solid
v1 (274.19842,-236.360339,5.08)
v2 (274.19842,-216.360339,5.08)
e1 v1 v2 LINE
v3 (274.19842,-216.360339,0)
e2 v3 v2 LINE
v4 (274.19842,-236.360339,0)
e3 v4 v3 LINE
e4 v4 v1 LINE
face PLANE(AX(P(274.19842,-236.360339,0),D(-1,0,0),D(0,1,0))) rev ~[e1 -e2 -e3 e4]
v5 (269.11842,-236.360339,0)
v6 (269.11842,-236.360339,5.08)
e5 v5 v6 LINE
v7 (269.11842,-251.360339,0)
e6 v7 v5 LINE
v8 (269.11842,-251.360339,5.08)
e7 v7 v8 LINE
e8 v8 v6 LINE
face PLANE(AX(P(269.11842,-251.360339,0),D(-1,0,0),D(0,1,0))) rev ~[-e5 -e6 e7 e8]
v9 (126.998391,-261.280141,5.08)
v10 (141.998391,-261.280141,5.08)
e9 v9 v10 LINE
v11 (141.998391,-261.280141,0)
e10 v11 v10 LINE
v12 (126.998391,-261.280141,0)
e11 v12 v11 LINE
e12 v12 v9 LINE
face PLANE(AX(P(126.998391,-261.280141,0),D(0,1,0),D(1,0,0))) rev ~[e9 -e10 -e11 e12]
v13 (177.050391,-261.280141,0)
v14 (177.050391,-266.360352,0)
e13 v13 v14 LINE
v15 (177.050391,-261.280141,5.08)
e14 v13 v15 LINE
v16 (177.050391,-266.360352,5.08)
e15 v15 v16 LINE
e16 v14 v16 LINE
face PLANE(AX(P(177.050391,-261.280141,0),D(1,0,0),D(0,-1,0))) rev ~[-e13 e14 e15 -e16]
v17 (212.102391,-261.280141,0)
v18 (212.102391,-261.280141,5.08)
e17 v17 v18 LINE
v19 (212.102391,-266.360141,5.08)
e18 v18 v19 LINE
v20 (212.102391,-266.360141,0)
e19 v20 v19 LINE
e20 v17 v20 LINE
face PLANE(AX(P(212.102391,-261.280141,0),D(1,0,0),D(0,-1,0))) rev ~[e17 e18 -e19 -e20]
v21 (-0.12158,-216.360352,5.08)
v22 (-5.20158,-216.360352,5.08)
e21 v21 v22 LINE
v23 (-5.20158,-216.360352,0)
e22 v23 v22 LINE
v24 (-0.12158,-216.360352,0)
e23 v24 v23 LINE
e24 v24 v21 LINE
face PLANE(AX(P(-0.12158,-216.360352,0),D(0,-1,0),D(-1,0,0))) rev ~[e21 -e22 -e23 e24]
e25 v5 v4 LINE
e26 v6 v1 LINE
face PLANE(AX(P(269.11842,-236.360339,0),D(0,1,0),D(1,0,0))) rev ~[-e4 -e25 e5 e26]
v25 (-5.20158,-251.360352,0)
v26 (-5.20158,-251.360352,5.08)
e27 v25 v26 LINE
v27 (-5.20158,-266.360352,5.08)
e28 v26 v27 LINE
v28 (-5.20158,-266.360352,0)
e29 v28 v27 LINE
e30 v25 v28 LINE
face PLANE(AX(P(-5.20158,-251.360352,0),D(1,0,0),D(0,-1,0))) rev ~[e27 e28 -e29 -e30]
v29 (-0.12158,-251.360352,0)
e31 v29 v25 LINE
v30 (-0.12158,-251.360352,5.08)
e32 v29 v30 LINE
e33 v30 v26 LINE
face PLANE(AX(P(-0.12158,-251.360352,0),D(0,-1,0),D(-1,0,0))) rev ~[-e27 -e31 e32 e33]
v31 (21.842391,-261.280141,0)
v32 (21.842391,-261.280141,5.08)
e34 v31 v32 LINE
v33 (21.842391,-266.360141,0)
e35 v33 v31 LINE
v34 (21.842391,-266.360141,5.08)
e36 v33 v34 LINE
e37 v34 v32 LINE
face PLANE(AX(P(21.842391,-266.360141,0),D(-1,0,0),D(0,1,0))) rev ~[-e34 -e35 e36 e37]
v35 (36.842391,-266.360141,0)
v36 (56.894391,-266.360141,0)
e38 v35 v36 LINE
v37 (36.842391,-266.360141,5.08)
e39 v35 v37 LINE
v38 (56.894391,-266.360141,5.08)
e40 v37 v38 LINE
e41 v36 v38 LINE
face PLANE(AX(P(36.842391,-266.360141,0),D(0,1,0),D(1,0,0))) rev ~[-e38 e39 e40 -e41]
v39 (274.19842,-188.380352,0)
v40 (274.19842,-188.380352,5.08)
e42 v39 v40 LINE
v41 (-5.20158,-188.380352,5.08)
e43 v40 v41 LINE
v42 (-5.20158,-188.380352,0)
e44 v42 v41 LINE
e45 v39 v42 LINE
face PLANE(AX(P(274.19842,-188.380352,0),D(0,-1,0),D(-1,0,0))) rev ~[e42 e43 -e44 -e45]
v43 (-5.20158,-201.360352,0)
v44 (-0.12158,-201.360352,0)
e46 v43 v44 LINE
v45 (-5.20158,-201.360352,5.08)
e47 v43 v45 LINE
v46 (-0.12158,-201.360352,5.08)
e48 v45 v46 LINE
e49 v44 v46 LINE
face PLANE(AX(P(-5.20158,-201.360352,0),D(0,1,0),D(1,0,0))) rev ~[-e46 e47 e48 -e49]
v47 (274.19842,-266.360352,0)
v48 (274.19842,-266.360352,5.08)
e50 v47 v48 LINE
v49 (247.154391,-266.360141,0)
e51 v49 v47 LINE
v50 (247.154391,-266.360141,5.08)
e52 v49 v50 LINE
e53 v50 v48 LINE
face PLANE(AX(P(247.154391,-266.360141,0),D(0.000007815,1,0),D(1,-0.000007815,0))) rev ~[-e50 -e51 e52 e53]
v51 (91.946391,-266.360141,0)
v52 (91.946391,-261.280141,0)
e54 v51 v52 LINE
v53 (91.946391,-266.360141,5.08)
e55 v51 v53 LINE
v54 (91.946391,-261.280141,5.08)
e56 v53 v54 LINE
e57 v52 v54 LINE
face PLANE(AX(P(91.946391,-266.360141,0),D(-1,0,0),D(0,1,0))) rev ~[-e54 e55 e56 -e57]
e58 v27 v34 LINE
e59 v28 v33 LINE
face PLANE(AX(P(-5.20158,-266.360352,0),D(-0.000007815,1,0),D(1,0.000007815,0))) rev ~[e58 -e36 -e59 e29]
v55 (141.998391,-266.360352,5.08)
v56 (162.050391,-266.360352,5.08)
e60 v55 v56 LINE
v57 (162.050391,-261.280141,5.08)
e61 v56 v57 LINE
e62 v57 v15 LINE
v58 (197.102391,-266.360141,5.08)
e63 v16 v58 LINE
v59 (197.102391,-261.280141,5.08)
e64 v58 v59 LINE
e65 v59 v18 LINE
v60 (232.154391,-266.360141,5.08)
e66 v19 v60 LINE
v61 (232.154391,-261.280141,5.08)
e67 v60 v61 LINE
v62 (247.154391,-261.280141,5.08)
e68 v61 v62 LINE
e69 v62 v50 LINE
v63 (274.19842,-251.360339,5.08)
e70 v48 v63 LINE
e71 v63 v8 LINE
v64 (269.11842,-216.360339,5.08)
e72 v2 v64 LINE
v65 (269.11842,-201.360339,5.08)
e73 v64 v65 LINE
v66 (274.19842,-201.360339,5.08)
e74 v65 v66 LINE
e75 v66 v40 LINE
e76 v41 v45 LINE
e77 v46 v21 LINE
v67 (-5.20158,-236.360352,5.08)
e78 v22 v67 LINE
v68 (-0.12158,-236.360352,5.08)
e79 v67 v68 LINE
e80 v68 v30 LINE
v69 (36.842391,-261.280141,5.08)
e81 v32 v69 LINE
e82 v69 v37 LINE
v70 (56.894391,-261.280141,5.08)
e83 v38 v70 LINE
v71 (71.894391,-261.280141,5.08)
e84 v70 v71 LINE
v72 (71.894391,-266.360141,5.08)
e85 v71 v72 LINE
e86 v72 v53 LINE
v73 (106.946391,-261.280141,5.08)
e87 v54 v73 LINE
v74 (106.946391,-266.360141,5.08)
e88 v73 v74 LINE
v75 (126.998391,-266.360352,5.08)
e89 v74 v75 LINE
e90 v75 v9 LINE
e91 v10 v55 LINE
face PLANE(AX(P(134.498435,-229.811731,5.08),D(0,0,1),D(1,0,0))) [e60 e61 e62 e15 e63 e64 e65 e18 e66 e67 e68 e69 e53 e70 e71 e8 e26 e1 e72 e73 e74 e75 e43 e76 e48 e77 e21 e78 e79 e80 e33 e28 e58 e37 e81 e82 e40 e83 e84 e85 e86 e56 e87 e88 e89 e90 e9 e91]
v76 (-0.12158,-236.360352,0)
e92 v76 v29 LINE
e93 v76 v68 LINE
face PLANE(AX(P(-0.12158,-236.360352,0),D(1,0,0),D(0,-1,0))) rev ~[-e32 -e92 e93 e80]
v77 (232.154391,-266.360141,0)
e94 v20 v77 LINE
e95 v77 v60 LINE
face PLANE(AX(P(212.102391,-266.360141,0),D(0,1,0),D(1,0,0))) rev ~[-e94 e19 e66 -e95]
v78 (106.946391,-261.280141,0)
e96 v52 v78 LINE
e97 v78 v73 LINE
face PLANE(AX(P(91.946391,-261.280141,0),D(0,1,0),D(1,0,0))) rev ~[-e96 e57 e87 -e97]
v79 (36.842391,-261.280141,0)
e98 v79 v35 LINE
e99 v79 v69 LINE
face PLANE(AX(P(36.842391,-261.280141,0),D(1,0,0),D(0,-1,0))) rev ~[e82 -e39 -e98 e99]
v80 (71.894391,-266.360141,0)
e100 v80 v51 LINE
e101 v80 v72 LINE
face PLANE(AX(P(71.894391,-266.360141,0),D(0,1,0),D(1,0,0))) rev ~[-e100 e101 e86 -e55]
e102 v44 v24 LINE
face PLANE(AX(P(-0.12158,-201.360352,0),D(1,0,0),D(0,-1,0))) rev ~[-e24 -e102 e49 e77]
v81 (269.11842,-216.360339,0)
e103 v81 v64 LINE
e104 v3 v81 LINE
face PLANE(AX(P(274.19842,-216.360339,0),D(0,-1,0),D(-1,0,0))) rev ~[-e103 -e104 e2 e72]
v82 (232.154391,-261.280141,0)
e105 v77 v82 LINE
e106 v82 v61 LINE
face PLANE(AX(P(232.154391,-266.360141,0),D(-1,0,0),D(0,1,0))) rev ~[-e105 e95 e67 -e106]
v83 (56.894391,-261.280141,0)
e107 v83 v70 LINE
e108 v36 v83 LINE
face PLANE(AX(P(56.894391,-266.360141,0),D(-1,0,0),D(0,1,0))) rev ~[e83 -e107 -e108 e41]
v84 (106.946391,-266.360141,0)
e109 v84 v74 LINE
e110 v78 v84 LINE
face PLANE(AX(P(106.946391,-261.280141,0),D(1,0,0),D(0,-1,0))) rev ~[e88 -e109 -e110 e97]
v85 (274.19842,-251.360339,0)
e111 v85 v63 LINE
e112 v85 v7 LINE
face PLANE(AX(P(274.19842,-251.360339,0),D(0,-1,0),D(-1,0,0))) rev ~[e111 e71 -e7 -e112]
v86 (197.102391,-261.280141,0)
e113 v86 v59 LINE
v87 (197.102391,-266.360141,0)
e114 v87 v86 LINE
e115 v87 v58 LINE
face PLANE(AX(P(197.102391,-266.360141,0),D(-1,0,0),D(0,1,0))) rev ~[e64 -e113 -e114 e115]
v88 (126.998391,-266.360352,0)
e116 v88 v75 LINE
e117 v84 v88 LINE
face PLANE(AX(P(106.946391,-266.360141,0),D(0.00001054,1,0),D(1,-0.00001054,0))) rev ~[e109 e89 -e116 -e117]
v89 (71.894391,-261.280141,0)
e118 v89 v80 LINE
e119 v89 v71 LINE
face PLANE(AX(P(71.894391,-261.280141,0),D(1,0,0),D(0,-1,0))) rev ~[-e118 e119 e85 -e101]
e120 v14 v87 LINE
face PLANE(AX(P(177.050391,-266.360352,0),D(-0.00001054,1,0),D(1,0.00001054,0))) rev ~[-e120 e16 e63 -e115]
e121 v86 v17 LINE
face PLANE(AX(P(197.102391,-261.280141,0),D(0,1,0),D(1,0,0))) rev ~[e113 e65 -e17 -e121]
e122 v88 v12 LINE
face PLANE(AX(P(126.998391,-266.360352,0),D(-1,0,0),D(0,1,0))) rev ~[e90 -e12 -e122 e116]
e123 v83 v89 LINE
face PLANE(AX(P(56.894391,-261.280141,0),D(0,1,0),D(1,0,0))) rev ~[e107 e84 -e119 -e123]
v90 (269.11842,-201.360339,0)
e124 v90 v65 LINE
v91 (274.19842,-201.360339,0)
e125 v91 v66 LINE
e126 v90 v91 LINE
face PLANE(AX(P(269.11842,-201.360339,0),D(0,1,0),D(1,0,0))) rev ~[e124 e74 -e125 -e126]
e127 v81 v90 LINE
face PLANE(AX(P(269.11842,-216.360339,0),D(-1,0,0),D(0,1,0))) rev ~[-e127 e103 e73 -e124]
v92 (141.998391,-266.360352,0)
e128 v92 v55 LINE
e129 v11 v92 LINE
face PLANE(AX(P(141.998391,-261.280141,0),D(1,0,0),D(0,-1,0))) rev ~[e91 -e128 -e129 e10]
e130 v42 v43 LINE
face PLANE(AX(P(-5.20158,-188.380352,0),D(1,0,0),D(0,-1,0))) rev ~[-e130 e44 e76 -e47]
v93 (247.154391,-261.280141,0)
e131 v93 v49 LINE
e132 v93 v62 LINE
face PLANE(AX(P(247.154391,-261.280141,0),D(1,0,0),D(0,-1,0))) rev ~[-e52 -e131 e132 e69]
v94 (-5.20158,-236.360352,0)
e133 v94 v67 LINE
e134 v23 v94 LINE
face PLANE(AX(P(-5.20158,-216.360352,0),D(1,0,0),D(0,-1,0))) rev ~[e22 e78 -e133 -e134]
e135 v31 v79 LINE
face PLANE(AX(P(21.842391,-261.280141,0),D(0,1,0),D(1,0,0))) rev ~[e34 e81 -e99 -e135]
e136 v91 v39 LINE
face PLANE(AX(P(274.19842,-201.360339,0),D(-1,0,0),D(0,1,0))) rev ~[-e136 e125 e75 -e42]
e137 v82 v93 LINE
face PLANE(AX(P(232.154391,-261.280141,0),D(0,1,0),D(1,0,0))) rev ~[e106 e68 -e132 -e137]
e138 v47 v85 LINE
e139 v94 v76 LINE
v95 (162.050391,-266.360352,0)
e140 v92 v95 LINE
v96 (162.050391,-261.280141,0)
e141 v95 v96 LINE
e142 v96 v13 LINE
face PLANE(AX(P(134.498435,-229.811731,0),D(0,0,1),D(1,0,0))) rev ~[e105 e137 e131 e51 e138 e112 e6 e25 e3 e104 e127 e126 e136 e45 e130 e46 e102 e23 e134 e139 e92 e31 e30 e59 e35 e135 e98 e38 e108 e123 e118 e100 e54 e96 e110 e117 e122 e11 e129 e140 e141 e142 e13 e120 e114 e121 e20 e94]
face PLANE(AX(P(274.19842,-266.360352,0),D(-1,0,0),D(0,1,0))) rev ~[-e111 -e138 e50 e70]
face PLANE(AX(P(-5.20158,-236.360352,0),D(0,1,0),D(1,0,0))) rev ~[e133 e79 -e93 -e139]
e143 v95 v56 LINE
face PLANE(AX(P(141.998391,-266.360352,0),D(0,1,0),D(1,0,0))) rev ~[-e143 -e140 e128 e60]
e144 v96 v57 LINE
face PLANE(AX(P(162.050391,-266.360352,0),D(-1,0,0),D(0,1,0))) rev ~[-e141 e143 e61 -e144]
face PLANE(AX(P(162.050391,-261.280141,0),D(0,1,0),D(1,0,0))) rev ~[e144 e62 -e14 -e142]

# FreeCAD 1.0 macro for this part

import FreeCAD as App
import Part
import Sketcher

V = App.Vector

doc = App.newDocument("Part")
body = doc.addObject("PartDesign::Body", "Body")

# Sketch on XY plane
sketch1 = body.newObject("Sketcher::SketchObject", "Sketch")
sketch1.AttachmentSupport = (doc.getObject("XY_Plane"), [""])
sketch1.MapMode = "FlatFace"
sketch1.addGeometry([
    Part.LineSegment(V(-5.20158, -266.360352, 0), V(21.842391, -266.360141, 0)),  # 0
    Part.LineSegment(V(21.842391, -266.360141, 0), V(21.842391, -261.280141, 0)),  # 1
    Part.LineSegment(V(21.842391, -261.280141, 0), V(36.842391, -261.280141, 0)),  # 2
    Part.LineSegment(V(36.842391, -261.280141, 0), V(36.842391, -266.360141, 0)),  # 3
    Part.LineSegment(V(36.842391, -266.360141, 0), V(56.894391, -266.360141, 0)),  # 4
    Part.LineSegment(V(56.894391, -266.360141, 0), V(56.894391, -261.280141, 0)),  # 5
    Part.LineSegment(V(56.894391, -261.280141, 0), V(71.894391, -261.280141, 0)),  # 6
    Part.LineSegment(V(71.894391, -261.280141, 0), V(71.894391, -266.360141, 0)),  # 7
    Part.LineSegment(V(71.894391, -266.360141, 0), V(91.946391, -266.360141, 0)),  # 8
    Part.LineSegment(V(91.946391, -266.360141, 0), V(91.946391, -261.280141, 0)),  # 9
    Part.LineSegment(V(91.946391, -261.280141, 0), V(106.946391, -261.280141, 0)),  # 10
    Part.LineSegment(V(106.946391, -261.280141, 0), V(106.946391, -266.360141, 0)),  # 11
    Part.LineSegment(V(106.946391, -266.360141, 0), V(126.998391, -266.360352, 0)),  # 12
    Part.LineSegment(V(126.998391, -266.360352, 0), V(126.998391, -261.280141, 0)),  # 13
    Part.LineSegment(V(126.998391, -261.280141, 0), V(141.998391, -261.280141, 0)),  # 14
    Part.LineSegment(V(141.998391, -261.280141, 0), V(141.998391, -266.360352, 0)),  # 15
    Part.LineSegment(V(141.998391, -266.360352, 0), V(162.050391, -266.360352, 0)),  # 16
    Part.LineSegment(V(162.050391, -266.360352, 0), V(162.050391, -261.280141, 0)),  # 17
    Part.LineSegment(V(162.050391, -261.280141, 0), V(177.050391, -261.280141, 0)),  # 18
    Part.LineSegment(V(177.050391, -261.280141, 0), V(177.050391, -266.360352, 0)),  # 19
    Part.LineSegment(V(177.050391, -266.360352, 0), V(197.102391, -266.360141, 0)),  # 20
    Part.LineSegment(V(197.102391, -266.360141, 0), V(197.102391, -261.280141, 0)),  # 21
    Part.LineSegment(V(197.102391, -261.280141, 0), V(212.102391, -261.280141, 0)),  # 22
    Part.LineSegment(V(212.102391, -261.280141, 0), V(212.102391, -266.360141, 0)),  # 23
    Part.LineSegment(V(212.102391, -266.360141, 0), V(232.154391, -266.360141, 0)),  # 24
    Part.LineSegment(V(232.154391, -266.360141, 0), V(232.154391, -261.280141, 0)),  # 25
    Part.LineSegment(V(232.154391, -261.280141, 0), V(247.154391, -261.280141, 0)),  # 26
    Part.LineSegment(V(247.154391, -261.280141, 0), V(247.154391, -266.360141, 0)),  # 27
    Part.LineSegment(V(247.154391, -266.360141, 0), V(274.19842, -266.360352, 0)),  # 28
    Part.LineSegment(V(274.19842, -266.360352, 0), V(274.19842, -251.360339, 0)),  # 29
    Part.LineSegment(V(274.19842, -251.360339, 0), V(269.11842, -251.360339, 0)),  # 30
    Part.LineSegment(V(269.11842, -251.360339, 0), V(269.11842, -236.360339, 0)),  # 31
    Part.LineSegment(V(269.11842, -236.360339, 0), V(274.19842, -236.360339, 0)),  # 32
    Part.LineSegment(V(274.19842, -236.360339, 0), V(274.19842, -216.360339, 0)),  # 33
    Part.LineSegment(V(274.19842, -216.360339, 0), V(269.11842, -216.360339, 0)),  # 34
    Part.LineSegment(V(269.11842, -216.360339, 0), V(269.11842, -201.360339, 0)),  # 35
    Part.LineSegment(V(269.11842, -201.360339, 0), V(274.19842, -201.360339, 0)),  # 36
    Part.LineSegment(V(274.19842, -201.360339, 0), V(274.19842, -188.380352, 0)),  # 37
    Part.LineSegment(V(274.19842, -188.380352, 0), V(-5.20158, -188.380352, 0)),  # 38
    Part.LineSegment(V(-5.20158, -188.380352, 0), V(-5.20158, -201.360352, 0)),  # 39
    Part.LineSegment(V(-5.20158, -201.360352, 0), V(-0.12158, -201.360352, 0)),  # 40
    Part.LineSegment(V(-0.12158, -201.360352, 0), V(-0.12158, -216.360352, 0)),  # 41
    Part.LineSegment(V(-0.12158, -216.360352, 0), V(-5.20158, -216.360352, 0)),  # 42
    Part.LineSegment(V(-5.20158, -216.360352, 0), V(-5.20158, -236.360352, 0)),  # 43
    Part.LineSegment(V(-5.20158, -236.360352, 0), V(-0.12158, -236.360352, 0)),  # 44
    Part.LineSegment(V(-0.12158, -236.360352, 0), V(-0.12158, -251.360352, 0)),  # 45
    Part.LineSegment(V(-0.12158, -251.360352, 0), V(-5.20158, -251.360352, 0)),  # 46
    Part.LineSegment(V(-5.20158, -251.360352, 0), V(-5.20158, -266.360352, 0)),  # 47
], False)
sketch1.addConstraint([
    Sketcher.Constraint("Coincident", 0, 2, 1, 1),
    Sketcher.Constraint("Coincident", 1, 2, 2, 1),
    Sketcher.Constraint("Coincident", 2, 2, 3, 1),
    Sketcher.Constraint("Coincident", 3, 2, 4, 1),
    Sketcher.Constraint("Coincident", 4, 2, 5, 1),
    Sketcher.Constraint("Coincident", 5, 2, 6, 1),
    Sketcher.Constraint("Coincident", 6, 2, 7, 1),
    Sketcher.Constraint("Coincident", 7, 2, 8, 1),
    Sketcher.Constraint("Coincident", 8, 2, 9, 1),
    Sketcher.Constraint("Coincident", 9, 2, 10, 1),
    Sketcher.Constraint("Coincident", 10, 2, 11, 1),
    Sketcher.Constraint("Coincident", 11, 2, 12, 1),
    Sketcher.Constraint("Coincident", 12, 2, 13, 1),
    Sketcher.Constraint("Coincident", 13, 2, 14, 1),
    Sketcher.Constraint("Coincident", 14, 2, 15, 1),
    Sketcher.Constraint("Coincident", 15, 2, 16, 1),
    Sketcher.Constraint("Coincident", 16, 2, 17, 1),
    Sketcher.Constraint("Coincident", 17, 2, 18, 1),
    Sketcher.Constraint("Coincident", 18, 2, 19, 1),
    Sketcher.Constraint("Coincident", 19, 2, 20, 1),
    Sketcher.Constraint("Coincident", 20, 2, 21, 1),
    Sketcher.Constraint("Coincident", 21, 2, 22, 1),
    Sketcher.Constraint("Coincident", 22, 2, 23, 1),
    Sketcher.Constraint("Coincident", 23, 2, 24, 1),
    Sketcher.Constraint("Coincident", 24, 2, 25, 1),
    Sketcher.Constraint("Coincident", 25, 2, 26, 1),
    Sketcher.Constraint("Coincident", 26, 2, 27, 1),
    Sketcher.Constraint("Coincident", 27, 2, 28, 1),
    Sketcher.Constraint("Coincident", 28, 2, 29, 1),
    Sketcher.Constraint("Coincident", 29, 2, 30, 1),
    Sketcher.Constraint("Coincident", 30, 2, 31, 1),
    Sketcher.Constraint("Coincident", 31, 2, 32, 1),
    Sketcher.Constraint("Coincident", 32, 2, 33, 1),
    Sketcher.Constraint("Coincident", 33, 2, 34, 1),
    Sketcher.Constraint("Coincident", 34, 2, 35, 1),
    Sketcher.Constraint("Coincident", 35, 2, 36, 1),
    Sketcher.Constraint("Coincident", 36, 2, 37, 1),
    Sketcher.Constraint("Coincident", 37, 2, 38, 1),
    Sketcher.Constraint("Coincident", 38, 2, 39, 1),
    Sketcher.Constraint("Coincident", 39, 2, 40, 1),
    Sketcher.Constraint("Coincident", 40, 2, 41, 1),
    Sketcher.Constraint("Coincident", 41, 2, 42, 1),
    Sketcher.Constraint("Coincident", 42, 2, 43, 1),
    Sketcher.Constraint("Coincident", 43, 2, 44, 1),
    Sketcher.Constraint("Coincident", 44, 2, 45, 1),
    Sketcher.Constraint("Coincident", 45, 2, 46, 1),
    Sketcher.Constraint("Coincident", 46, 2, 47, 1),
    Sketcher.Constraint("Coincident", 47, 2, 0, 1),
    Sketcher.Constraint("Vertical", 1),
    Sketcher.Constraint("Horizontal", 2),
    Sketcher.Constraint("Vertical", 3),
    Sketcher.Constraint("Horizontal", 4),
    Sketcher.Constraint("Vertical", 5),
    Sketcher.Constraint("Horizontal", 6),
    Sketcher.Constraint("Vertical", 7),
    Sketcher.Constraint("Horizontal", 8),
    Sketcher.Constraint("Vertical", 9),
    Sketcher.Constraint("Horizontal", 10),
    Sketcher.Constraint("Vertical", 11),
    Sketcher.Constraint("Vertical", 13),
    Sketcher.Constraint("Horizontal", 14),
    Sketcher.Constraint("Vertical", 15),
    Sketcher.Constraint("Horizontal", 16),
    Sketcher.Constraint("Vertical", 17),
    Sketcher.Constraint("Horizontal", 18),
    Sketcher.Constraint("Vertical", 19),
    Sketcher.Constraint("Vertical", 21),
    Sketcher.Constraint("Horizontal", 22),
    Sketcher.Constraint("Vertical", 23),
    Sketcher.Constraint("Horizontal", 24),
    Sketcher.Constraint("Vertical", 25),
    Sketcher.Constraint("Horizontal", 26),
    Sketcher.Constraint("Vertical", 27),
    Sketcher.Constraint("Vertical", 29),
    Sketcher.Constraint("Horizontal", 30),
    Sketcher.Constraint("Vertical", 31),
    Sketcher.Constraint("Horizontal", 32),
    Sketcher.Constraint("Vertical", 33),
    Sketcher.Constraint("Horizontal", 34),
    Sketcher.Constraint("Vertical", 35),
    Sketcher.Constraint("Horizontal", 36),
    Sketcher.Constraint("Vertical", 37),
    Sketcher.Constraint("Horizontal", 38),
    Sketcher.Constraint("Vertical", 39),
    Sketcher.Constraint("Horizontal", 40),
    Sketcher.Constraint("Vertical", 41),
    Sketcher.Constraint("Horizontal", 42),
    Sketcher.Constraint("Vertical", 43),
    Sketcher.Constraint("Horizontal", 44),
    Sketcher.Constraint("Vertical", 45),
    Sketcher.Constraint("Horizontal", 46),
    Sketcher.Constraint("Vertical", 47),
    Sketcher.Constraint("Horizontal", 0, 2, 3, 2),
    Sketcher.Constraint("Horizontal", 2, 2, 5, 2),
    Sketcher.Constraint("Horizontal", 4, 2, 7, 2),
    Sketcher.Constraint("Horizontal", 6, 2, 9, 2),
    Sketcher.Constraint("Horizontal", 8, 2, 11, 2),
    Sketcher.Constraint("Horizontal", 10, 2, 13, 2),
    Sketcher.Constraint("Horizontal", 12, 2, 15, 2),
    Sketcher.Constraint("Horizontal", 14, 2, 17, 2),
    Sketcher.Constraint("Horizontal", 16, 2, 19, 2),
    Sketcher.Constraint("Horizontal", 11, 2, 20, 2),
    Sketcher.Constraint("Horizontal", 18, 2, 21, 2),
    Sketcher.Constraint("Horizontal", 20, 2, 23, 2),
    Sketcher.Constraint("Horizontal", 22, 2, 25, 2),
    Sketcher.Constraint("Horizontal", 24, 2, 27, 2),
    Sketcher.Constraint("Horizontal", 19, 2, 28, 2),
    Sketcher.Constraint("Horizontal", 28, 2, 47, 2),
    Sketcher.Constraint("Vertical", 29, 2, 32, 2),
    Sketcher.Constraint("Vertical", 31, 2, 34, 2),
    Sketcher.Constraint("Vertical", 33, 2, 36, 2),
    Sketcher.Constraint("Vertical", 39, 2, 42, 2),
    Sketcher.Constraint("Vertical", 41, 2, 44, 2),
    Sketcher.Constraint("Vertical", 43, 2, 46, 2),
    Sketcher.Constraint("Equal", 2, 6),
    Sketcher.Constraint("Equal", 4, 8),
    Sketcher.Constraint("Equal", 6, 10),
    Sketcher.Constraint("Equal", 10, 14),
    Sketcher.Constraint("Equal", 8, 16),
    Sketcher.Constraint("Equal", 14, 18),
    Sketcher.Constraint("Equal", 18, 22),
    Sketcher.Constraint("Equal", 16, 24),
    Sketcher.Constraint("Equal", 22, 26),
    Sketcher.Constraint("Equal", 36, 40),
    Sketcher.Constraint("Equal", 46, 1),
    Sketcher.Constraint("Equal", 26, 31),
    Sketcher.Constraint("Equal", 31, 35),
    Sketcher.Constraint("Equal", 35, 41),
    Sketcher.Constraint("Equal", 33, 43),
    Sketcher.Constraint("Equal", 41, 45),
    Sketcher.Constraint("Equal", 45, 47),
    Sketcher.Constraint("Equal", 12, 20),
    Sketcher.Constraint("DistanceX", 2, 1, 2, 2, 15.0),
    Sketcher.Constraint("DistanceY", 33, 1, 33, 2, 20.0),
    Sketcher.Constraint("DistanceX", 38, 2, 38, 1, 279.4),
    Sketcher.Constraint("DistanceX", 30, 2, 30, 1, 5.08),
    Sketcher.Constraint("DistanceY", 39, 2, 39, 1, 12.98),
    Sketcher.Constraint("DistanceX", 4, 1, 4, 2, 20.052),
    Sketcher.Constraint("Distance", 12, 20.052),
    Sketcher.Constraint("DistanceY", 13, 1, 13, 2, 5.080211),
    Sketcher.Constraint("DistanceY", 26, 2, 29, 2, 9.919801),
    Sketcher.Constraint("Distance", 0, 27.043971),
    Sketcher.Constraint("DistanceX", -1, 1, 0, 2, 21.842391),
    Sketcher.Constraint("DistanceY", 0, 2, -1, 1, 266.360141),
])
pad1 = body.newObject("PartDesign::Pad", "Pad")
pad1.Profile = sketch1
pad1.Length = 5.08

doc.recompute()
